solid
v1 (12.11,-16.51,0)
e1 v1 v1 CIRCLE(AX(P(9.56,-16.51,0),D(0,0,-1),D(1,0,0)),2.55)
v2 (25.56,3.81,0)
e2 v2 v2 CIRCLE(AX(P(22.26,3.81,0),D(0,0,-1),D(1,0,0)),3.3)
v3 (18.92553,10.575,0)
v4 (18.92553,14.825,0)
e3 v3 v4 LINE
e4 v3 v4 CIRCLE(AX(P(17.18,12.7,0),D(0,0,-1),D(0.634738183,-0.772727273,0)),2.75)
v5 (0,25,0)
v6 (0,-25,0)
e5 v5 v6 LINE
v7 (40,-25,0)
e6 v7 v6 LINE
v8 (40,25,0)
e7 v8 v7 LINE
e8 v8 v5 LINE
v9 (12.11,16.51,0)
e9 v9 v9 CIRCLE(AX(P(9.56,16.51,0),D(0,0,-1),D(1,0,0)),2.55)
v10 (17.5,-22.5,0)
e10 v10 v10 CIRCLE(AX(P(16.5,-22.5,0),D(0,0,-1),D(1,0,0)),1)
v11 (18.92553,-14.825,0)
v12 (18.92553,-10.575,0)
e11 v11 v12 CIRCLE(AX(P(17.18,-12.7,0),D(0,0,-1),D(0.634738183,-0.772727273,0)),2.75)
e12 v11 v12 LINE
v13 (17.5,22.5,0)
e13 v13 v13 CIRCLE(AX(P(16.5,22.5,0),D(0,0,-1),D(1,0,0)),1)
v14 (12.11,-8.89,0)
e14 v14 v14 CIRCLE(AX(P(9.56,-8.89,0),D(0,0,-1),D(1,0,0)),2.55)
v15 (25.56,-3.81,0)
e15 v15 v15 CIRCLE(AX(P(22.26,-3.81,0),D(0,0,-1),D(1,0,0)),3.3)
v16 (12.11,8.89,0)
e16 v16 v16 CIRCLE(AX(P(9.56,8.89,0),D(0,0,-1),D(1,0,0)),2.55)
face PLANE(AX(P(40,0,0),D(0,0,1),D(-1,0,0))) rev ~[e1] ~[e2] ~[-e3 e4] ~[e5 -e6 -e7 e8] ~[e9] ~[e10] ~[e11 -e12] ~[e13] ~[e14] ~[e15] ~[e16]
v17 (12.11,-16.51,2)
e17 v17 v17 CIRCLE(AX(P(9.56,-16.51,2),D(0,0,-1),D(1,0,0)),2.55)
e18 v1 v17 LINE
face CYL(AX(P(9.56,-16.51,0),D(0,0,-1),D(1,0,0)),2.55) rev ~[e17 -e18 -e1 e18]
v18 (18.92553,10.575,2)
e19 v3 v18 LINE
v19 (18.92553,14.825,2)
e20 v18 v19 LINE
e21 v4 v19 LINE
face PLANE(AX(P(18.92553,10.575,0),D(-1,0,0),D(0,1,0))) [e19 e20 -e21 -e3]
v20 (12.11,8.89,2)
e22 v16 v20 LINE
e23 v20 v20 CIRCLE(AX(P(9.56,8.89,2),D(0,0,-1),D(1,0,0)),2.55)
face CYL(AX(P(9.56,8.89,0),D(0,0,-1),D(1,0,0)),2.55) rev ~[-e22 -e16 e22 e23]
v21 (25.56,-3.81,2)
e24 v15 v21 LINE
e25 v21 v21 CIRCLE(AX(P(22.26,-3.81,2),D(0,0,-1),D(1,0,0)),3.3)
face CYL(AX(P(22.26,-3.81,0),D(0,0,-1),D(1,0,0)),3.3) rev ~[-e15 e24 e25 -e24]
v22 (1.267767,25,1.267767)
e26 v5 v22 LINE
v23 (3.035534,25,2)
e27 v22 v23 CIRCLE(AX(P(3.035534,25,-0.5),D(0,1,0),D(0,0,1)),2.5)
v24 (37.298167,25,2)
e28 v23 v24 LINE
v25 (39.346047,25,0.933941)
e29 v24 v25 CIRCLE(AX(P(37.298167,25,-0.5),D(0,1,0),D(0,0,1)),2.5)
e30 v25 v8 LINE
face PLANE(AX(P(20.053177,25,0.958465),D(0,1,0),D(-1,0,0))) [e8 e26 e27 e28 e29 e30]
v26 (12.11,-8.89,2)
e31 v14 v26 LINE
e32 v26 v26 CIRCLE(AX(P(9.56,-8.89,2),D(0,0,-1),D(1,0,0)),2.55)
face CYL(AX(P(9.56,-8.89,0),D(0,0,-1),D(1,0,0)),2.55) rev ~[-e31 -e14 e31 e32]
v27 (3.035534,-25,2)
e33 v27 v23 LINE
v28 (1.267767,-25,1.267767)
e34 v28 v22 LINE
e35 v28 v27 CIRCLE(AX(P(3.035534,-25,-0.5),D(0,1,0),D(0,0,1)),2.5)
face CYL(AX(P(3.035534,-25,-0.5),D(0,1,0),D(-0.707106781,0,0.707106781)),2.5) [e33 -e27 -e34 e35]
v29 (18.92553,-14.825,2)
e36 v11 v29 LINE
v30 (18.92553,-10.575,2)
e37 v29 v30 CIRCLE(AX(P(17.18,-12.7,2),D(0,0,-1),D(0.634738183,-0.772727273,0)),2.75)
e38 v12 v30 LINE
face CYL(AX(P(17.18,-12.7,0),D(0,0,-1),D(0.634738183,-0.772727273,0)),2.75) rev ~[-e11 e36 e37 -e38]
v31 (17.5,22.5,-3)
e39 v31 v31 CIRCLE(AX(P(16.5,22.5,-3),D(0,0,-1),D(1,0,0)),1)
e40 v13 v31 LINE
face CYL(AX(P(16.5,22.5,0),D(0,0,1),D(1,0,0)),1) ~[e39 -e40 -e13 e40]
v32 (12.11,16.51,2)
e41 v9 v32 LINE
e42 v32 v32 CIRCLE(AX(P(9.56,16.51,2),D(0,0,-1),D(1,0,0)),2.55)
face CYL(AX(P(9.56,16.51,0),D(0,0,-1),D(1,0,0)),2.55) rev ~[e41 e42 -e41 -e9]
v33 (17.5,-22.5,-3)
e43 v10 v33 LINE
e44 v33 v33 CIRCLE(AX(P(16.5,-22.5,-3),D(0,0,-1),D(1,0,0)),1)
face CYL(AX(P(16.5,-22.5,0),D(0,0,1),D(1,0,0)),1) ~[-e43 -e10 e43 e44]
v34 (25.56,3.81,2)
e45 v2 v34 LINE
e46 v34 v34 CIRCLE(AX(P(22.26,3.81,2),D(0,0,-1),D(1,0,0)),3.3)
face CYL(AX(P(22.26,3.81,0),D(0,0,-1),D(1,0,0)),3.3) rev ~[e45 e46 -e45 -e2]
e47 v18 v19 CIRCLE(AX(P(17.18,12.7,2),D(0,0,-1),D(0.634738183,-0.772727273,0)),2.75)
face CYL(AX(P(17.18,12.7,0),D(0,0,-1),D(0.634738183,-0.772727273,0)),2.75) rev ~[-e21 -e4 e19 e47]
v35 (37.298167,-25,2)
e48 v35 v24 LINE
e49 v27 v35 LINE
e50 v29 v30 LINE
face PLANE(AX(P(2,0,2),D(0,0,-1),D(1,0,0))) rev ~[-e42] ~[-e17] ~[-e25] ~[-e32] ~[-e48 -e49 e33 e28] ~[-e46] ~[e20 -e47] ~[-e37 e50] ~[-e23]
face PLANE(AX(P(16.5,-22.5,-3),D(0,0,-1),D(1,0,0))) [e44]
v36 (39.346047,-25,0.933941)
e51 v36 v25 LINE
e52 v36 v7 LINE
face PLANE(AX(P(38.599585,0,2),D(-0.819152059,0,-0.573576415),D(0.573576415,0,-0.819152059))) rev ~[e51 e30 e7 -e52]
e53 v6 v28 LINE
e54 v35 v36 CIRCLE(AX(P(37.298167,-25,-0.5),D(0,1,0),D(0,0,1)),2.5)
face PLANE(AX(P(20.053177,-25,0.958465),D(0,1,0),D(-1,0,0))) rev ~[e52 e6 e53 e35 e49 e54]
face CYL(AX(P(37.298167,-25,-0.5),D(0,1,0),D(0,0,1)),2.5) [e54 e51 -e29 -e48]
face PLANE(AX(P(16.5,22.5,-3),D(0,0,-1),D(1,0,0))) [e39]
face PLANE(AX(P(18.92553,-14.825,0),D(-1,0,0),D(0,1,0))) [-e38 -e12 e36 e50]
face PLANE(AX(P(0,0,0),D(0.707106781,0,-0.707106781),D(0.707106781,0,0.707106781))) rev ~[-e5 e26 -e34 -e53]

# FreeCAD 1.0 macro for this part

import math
import FreeCAD as App
import Part
import Sketcher

V = App.Vector
Q = App.Units.Quantity


def edges_at(feature, points):
    """Names of the edges that pass closest to the given points."""
    edges = feature.Shape.Edges
    near = lambda p: min(range(len(edges)), key=lambda i: edges[i].distToShape(Part.Vertex(*p))[0])
    return sorted({f"Edge{near(p) + 1}" for p in points})

doc = App.newDocument("Part")
params = doc.addObject("Spreadsheet::Sheet", "Params")
for row, (alias, value) in enumerate([
    ("sketch1_width", "40 mm"),
    ("pad1_length", "50 mm"),
    ("sketch2_diameter", "2 mm"),
    ("pad2_length", "3 mm"),
    ("sketch3_diameter", "5.1 mm"),
    ("sketch3_diameter2", "6.6 mm"),
    ("sketch3_radius", "2.75 mm"),
    ("sketch3_height", "4.25 mm"),
    ("fillet_radius", "2.5 mm"),
], start=1):
    params.set(f"A{row}", alias)
    params.set(f"B{row}", "=" + value)
    params.setAlias(f"B{row}", alias)

body = doc.addObject("PartDesign::Body", "Body")

sketch1 = body.newObject("Sketcher::SketchObject", "Sketch")
sketch1.AttachmentSupport = (doc.getObject("XZ_Plane"), [""])
sketch1.MapMode = "FlatFace"
sketch1.addGeometry(Part.LineSegment(V(2, 2, 0), V(0, 0, 0)), False)
sketch1.addGeometry(Part.LineSegment(V(0, 0, 0), V(40, 0, 0)), False)
sketch1.addGeometry(Part.LineSegment(V(40, 0, 0), V(38.6, 2, 0)), False)
sketch1.addGeometry(Part.LineSegment(V(38.6, 2, 0), V(2, 2, 0)), False)
sketch1.addConstraint(Sketcher.Constraint("Coincident", 0, 2, 1, 1))
sketch1.addConstraint(Sketcher.Constraint("Coincident", 1, 2, 2, 1))
sketch1.addConstraint(Sketcher.Constraint("Coincident", 2, 2, 3, 1))
sketch1.addConstraint(Sketcher.Constraint("Coincident", 3, 2, 0, 1))
sketch1.addConstraint(Sketcher.Constraint("Horizontal", 1))
sketch1.addConstraint(Sketcher.Constraint("Horizontal", 3))
sketch1.addConstraint(Sketcher.Constraint("Coincident", 0, 2, -1, 1))
sketch1.addConstraint(Sketcher.Constraint("DistanceX", 1, 1, 1, 2, Q("40 mm")))
sketch1.addConstraint(Sketcher.Constraint("Angle", 0, Q("-135 deg")))
sketch1.addConstraint(Sketcher.Constraint("Angle", 2, Q("124.999999 deg")))
sketch1.addConstraint(Sketcher.Constraint("DistanceY", -1, 1, 2, 2, Q("2 mm")))
sketch1.setExpression("Constraints[7]", "Params.sketch1_width")
pad1 = body.newObject("PartDesign::Pad", "Pad")
pad1.Profile = sketch1
pad1.setExpression("Length", "Params.pad1_length")
pad1.Midplane = True

sketch2 = body.newObject("Sketcher::SketchObject", "Sketch001")
sketch2.AttachmentSupport = (doc.getObject("XY_Plane"), [""])
sketch2.MapMode = "FlatFace"
sketch2.addGeometry(Part.Circle(V(16.5, -22.5, 0), V(0, 0, 1), 1), False)
sketch2.addGeometry(Part.Circle(V(16.5, 22.5, 0), V(0, 0, 1), 1), False)
sketch2.addConstraint(Sketcher.Constraint("Equal", 0, 1))
sketch2.addConstraint(Sketcher.Constraint("Symmetric", 0, 3, 1, 3, -1))
sketch2.addConstraint(Sketcher.Constraint("Diameter", 0, Q("2 mm")))
sketch2.addConstraint(Sketcher.Constraint("DistanceY", 0, 3, 1, 3, Q("45 mm")))
sketch2.addConstraint(Sketcher.Constraint("DistanceX", -1, 1, 0, 3, Q("16.5 mm")))
sketch2.setExpression("Constraints[2]", "Params.sketch2_diameter")
pad2 = body.newObject("PartDesign::Pad", "Pad001")
pad2.Profile = sketch2
pad2.setExpression("Length", "Params.pad2_length")
pad2.Reversed = True

sketch3 = body.newObject("Sketcher::SketchObject", "Sketch002")
sketch3.AttachmentSupport = (doc.getObject("XY_Plane"), [""])
sketch3.MapMode = "FlatFace"
sketch3.addGeometry(Part.Circle(V(9.6, -16.5, 0), V(0, 0, 1), 2.5), False)
sketch3.addGeometry(Part.Circle(V(9.6, -8.9, 0), V(0, 0, 1), 2.5), False)
sketch3.addGeometry(Part.Circle(V(9.6, 8.9, 0), V(0, 0, 1), 2.5), False)
sketch3.addGeometry(Part.Circle(V(9.6, 16.5, 0), V(0, 0, 1), 2.5), False)
sketch3.addGeometry(Part.Circle(V(22.3, -3.8, 0), V(0, 0, 1), 3.3), False)
sketch3.addGeometry(Part.Circle(V(22.3, 3.8, 0), V(0, 0, 1), 3.3), False)
sketch3.addGeometry(Part.LineSegment(V(18.9, -10.6, 0), V(18.9, -14.8, 0)), False)
sketch3.addGeometry(Part.ArcOfCircle(Part.Circle(V(17.2, -12.7, 0), V(0, 0, 1), 2.7), math.radians(51), math.radians(309)), False)
sketch3.addGeometry(Part.LineSegment(V(18.9, 14.8, 0), V(18.9, 10.6, 0)), False)
sketch3.addGeometry(Part.ArcOfCircle(Part.Circle(V(17.2, 12.7, 0), V(0, 0, 1), 2.7), math.radians(51), math.radians(309)), False)
sketch3.addConstraint(Sketcher.Constraint("Coincident", 6, 1, 7, 1))
sketch3.addConstraint(Sketcher.Constraint("Coincident", 7, 2, 6, 2))
sketch3.addConstraint(Sketcher.Constraint("Coincident", 8, 1, 9, 1))
sketch3.addConstraint(Sketcher.Constraint("Coincident", 9, 2, 8, 2))
sketch3.addConstraint(Sketcher.Constraint("Vertical", 6))
sketch3.addConstraint(Sketcher.Constraint("Vertical", 8))
sketch3.addConstraint(Sketcher.Constraint("Equal", 0, 1))
sketch3.addConstraint(Sketcher.Constraint("Equal", 1, 2))
sketch3.addConstraint(Sketcher.Constraint("Equal", 2, 3))
sketch3.addConstraint(Sketcher.Constraint("Equal", 4, 5))
sketch3.addConstraint(Sketcher.Constraint("Equal", 7, 9))
sketch3.addConstraint(Sketcher.Constraint("Symmetric", 1, 3, 2, 3, -1))
sketch3.addConstraint(Sketcher.Constraint("Symmetric", 0, 3, 3, 3, -1))
sketch3.addConstraint(Sketcher.Constraint("Symmetric", 4, 3, 5, 3, -1))
sketch3.addConstraint(Sketcher.Constraint("Symmetric", 7, 3, 9, 3, -1))
sketch3.addConstraint(Sketcher.Constraint("Vertical", 0, 3, 1, 3))
sketch3.addConstraint(Sketcher.Constraint("Vertical", 7, 2, 8, 1))
sketch3.addConstraint(Sketcher.Constraint("Diameter", 0, Q("5.1 mm")))
sketch3.addConstraint(Sketcher.Constraint("Diameter", 4, Q("6.6 mm")))
sketch3.addConstraint(Sketcher.Constraint("Radius", 7, Q("2.75 mm")))
sketch3.addConstraint(Sketcher.Constraint("DistanceY", 6, 2, 6, 1, Q("4.25 mm")))
sketch3.addConstraint(Sketcher.Constraint("DistanceY", 7, 3, -1, 1, Q("12.7 mm")))
sketch3.addConstraint(Sketcher.Constraint("DistanceY", 0, 3, 2, 3, Q("25.4 mm")))
sketch3.addConstraint(Sketcher.Constraint("DistanceX", 1, 3, 4, 3, Q("12.7 mm")))
sketch3.addConstraint(Sketcher.Constraint("DistanceY", 0, 3, 4, 3, Q("12.7 mm")))
sketch3.addConstraint(Sketcher.Constraint("DistanceX", -1, 1, 0, 3, Q("9.56 mm")))
sketch3.addConstraint(Sketcher.Constraint("DistanceY", 0, 3, -1, 1, Q("16.51 mm")))
sketch3.addConstraint(Sketcher.Constraint("DistanceX", -1, 1, 7, 3, Q("17.18 mm")))
sketch3.setExpression("Constraints[17]", "Params.sketch3_diameter")
sketch3.setExpression("Constraints[18]", "Params.sketch3_diameter2")
sketch3.setExpression("Constraints[19]", "Params.sketch3_radius")
sketch3.setExpression("Constraints[20]", "Params.sketch3_height")
pocket1 = body.newObject("PartDesign::Pocket", "Pocket")
pocket1.Profile = sketch3
pocket1.Type = "ThroughAll"
pocket1.Reversed = True
doc.recompute()

fillet = body.newObject("PartDesign::Fillet", "Fillet")
fillet.Base = (pocket1, edges_at(pocket1, [(38.6, 0, 2), (2, 0, 2)]))
fillet.setExpression("Radius", "Params.fillet_radius")

doc.recompute()
